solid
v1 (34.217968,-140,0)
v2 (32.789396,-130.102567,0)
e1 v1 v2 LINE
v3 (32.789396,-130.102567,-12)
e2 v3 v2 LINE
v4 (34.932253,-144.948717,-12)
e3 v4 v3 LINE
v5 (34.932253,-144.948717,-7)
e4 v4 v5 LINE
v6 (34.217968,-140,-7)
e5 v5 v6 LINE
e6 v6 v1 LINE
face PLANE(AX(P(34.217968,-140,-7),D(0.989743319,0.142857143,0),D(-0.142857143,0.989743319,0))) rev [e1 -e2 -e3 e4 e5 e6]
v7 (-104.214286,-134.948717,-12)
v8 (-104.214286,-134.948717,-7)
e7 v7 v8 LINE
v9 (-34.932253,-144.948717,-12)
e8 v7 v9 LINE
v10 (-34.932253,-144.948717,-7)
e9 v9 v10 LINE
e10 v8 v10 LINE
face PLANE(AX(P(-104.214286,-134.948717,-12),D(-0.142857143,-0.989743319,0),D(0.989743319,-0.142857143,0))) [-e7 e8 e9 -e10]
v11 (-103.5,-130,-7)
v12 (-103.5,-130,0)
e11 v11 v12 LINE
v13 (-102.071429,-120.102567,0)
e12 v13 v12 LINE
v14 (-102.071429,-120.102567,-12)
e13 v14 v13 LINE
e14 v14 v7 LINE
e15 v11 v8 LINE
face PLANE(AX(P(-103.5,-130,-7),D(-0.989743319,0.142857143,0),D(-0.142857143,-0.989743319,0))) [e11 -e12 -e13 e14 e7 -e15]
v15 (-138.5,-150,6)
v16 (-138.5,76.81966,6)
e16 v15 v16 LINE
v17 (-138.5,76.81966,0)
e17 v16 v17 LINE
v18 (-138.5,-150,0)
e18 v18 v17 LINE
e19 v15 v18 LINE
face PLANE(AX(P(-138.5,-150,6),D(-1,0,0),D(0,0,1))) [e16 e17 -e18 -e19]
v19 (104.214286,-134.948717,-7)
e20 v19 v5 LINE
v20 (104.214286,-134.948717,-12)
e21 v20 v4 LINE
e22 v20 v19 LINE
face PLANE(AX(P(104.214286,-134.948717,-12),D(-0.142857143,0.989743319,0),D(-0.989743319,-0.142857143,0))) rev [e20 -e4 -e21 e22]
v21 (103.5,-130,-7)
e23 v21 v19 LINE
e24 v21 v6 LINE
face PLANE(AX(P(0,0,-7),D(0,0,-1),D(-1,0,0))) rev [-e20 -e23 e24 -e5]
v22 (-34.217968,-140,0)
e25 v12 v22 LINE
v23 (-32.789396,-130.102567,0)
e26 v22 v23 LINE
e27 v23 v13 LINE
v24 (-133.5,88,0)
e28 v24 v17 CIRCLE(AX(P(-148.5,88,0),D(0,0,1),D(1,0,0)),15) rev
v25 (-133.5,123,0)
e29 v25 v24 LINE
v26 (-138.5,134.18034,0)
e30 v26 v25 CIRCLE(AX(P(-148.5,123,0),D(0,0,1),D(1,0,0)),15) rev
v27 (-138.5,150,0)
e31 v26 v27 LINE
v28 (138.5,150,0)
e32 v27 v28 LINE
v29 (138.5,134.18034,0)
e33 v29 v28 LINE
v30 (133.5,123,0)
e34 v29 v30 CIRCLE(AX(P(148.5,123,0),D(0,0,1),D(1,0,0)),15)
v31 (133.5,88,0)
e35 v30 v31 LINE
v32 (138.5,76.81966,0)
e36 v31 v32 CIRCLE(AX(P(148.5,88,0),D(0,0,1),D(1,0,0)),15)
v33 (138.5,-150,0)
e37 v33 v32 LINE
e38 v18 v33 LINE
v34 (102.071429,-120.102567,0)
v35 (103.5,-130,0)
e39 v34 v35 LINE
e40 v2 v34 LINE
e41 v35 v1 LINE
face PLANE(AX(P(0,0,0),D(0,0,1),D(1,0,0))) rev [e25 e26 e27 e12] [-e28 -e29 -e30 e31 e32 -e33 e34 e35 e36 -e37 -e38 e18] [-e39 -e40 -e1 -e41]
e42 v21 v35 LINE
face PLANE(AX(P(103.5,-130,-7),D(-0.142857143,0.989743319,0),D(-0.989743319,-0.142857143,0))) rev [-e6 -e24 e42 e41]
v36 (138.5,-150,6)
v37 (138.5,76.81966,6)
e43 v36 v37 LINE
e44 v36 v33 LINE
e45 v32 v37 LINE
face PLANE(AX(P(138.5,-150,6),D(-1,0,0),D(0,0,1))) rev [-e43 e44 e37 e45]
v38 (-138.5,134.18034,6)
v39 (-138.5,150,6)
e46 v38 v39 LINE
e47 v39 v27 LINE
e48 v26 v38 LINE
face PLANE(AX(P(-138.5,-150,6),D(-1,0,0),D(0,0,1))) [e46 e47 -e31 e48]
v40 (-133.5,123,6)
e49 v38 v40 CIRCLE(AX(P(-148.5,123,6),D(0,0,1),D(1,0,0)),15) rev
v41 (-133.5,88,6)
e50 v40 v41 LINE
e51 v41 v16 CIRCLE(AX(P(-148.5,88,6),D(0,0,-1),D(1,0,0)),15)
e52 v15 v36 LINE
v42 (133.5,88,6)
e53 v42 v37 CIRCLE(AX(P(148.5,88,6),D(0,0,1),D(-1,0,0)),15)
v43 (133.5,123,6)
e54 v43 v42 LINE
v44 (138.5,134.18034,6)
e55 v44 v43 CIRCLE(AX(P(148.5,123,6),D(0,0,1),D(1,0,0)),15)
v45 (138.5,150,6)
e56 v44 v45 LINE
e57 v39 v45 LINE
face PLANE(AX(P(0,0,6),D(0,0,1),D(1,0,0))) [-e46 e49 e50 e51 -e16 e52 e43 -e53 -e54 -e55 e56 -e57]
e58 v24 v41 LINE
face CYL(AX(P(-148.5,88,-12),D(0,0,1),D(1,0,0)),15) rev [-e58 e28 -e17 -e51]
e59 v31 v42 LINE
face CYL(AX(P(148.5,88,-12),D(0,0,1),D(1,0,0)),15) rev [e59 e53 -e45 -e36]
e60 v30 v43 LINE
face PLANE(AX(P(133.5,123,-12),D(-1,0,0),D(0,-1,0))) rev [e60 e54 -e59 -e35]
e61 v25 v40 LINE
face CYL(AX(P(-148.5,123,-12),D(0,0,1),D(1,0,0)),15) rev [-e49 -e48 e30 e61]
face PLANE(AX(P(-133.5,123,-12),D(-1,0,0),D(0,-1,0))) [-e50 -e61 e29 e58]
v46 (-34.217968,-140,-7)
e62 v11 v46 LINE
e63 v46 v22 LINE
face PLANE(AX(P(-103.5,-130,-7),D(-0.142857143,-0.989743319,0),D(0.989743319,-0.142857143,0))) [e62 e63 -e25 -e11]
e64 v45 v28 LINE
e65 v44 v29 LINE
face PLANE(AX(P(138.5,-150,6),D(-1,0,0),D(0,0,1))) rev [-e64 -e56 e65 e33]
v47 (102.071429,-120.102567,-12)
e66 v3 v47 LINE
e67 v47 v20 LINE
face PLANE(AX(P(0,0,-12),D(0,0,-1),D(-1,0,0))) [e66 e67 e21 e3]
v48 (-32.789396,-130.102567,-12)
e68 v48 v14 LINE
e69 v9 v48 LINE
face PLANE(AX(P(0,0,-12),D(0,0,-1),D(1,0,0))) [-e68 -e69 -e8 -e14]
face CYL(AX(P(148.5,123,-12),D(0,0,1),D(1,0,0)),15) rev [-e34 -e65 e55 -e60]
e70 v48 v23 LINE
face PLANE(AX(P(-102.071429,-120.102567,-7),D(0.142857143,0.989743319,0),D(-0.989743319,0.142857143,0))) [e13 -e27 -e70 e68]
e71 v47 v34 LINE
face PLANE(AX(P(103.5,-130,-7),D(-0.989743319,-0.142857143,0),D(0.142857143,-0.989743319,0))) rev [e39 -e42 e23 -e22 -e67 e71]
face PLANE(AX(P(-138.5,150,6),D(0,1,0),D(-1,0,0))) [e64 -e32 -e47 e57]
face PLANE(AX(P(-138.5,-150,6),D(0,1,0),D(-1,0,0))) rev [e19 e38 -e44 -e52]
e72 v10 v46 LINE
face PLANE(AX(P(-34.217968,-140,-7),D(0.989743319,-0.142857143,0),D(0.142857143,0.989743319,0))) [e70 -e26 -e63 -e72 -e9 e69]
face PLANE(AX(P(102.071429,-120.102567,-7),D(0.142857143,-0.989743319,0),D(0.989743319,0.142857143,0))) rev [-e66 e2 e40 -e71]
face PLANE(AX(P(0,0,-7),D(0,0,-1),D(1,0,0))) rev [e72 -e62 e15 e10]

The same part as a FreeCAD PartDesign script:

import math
import FreeCAD as App
import Part
import Sketcher

doc = App.newDocument("Part")
body = doc.addObject("PartDesign::Body", "Body")

sketch1 = body.newObject("Sketcher::SketchObject", "Sketch")
sketch1.AttachmentSupport = (doc.getObject("XY_Plane"), [""])
sketch1.MapMode = "FlatFace"
sketch1.addGeometry([
    Part.LineSegment(App.Vector(-138.5, 150, 0), App.Vector(-138.5, -150, 0)),
    Part.LineSegment(App.Vector(-138.5, -150, 0), App.Vector(138.5, -150, 0)),
    Part.LineSegment(App.Vector(138.5, -150, 0), App.Vector(138.5, 150, 0)),
    Part.LineSegment(App.Vector(138.5, 150, 0), App.Vector(-138.5, 150, 0)),
], False)
sketch1.addConstraint([
    Sketcher.Constraint("Coincident", 0, 2, 1, 1),
    Sketcher.Constraint("Coincident", 1, 2, 2, 1),
    Sketcher.Constraint("Coincident", 2, 2, 3, 1),
    Sketcher.Constraint("Coincident", 3, 2, 0, 1),
    Sketcher.Constraint("Vertical", 0),
    Sketcher.Constraint("Horizontal", 1),
    Sketcher.Constraint("Vertical", 2),
    Sketcher.Constraint("Horizontal", 3),
    Sketcher.Constraint("Symmetric", 0, 2, 2, 2, -1, 1),
    Sketcher.Constraint("DistanceX", 1, 1, 1, 2, 277.0),
    Sketcher.Constraint("DistanceY", 0, 2, 0, 1, 300.0),
])
pad1 = body.newObject("PartDesign::Pad", "Pad")
pad1.Profile = sketch1
pad1.Length = 6

sketch2 = body.newObject("Sketcher::SketchObject", "Sketch001")
sketch2.AttachmentSupport = (doc.getObject("XY_Plane"), [""])
sketch2.MapMode = "FlatFace"
sketch2.addGeometry([
    Part.LineSegment(App.Vector(103.5, -130, 0), App.Vector(34.217968, -140, 0)),
    Part.LineSegment(App.Vector(34.217968, -140, 0), App.Vector(32.789396, -130.102567, 0)),
    Part.LineSegment(App.Vector(32.789396, -130.102567, 0), App.Vector(102.071429, -120.102567, 0)),
    Part.LineSegment(App.Vector(102.071429, -120.102567, 0), App.Vector(103.5, -130, 0)),
], False)
sketch2.addConstraint([
    Sketcher.Constraint("Coincident", 0, 2, 1, 1),
    Sketcher.Constraint("Coincident", 1, 2, 2, 1),
    Sketcher.Constraint("Coincident", 2, 2, 3, 1),
    Sketcher.Constraint("Coincident", 3, 2, 0, 1),
    Sketcher.Constraint("Perpendicular", 0, 1),
    Sketcher.Constraint("Perpendicular", 1, 2),
    Sketcher.Constraint("Perpendicular", 2, 3),
    Sketcher.Constraint("Distance", 0, 70.0),
    Sketcher.Constraint("Distance", 1, 10.0),
    Sketcher.Constraint("DistanceY", 0, 2, -1, 1, 140.0),
    Sketcher.Constraint("DistanceY", 3, 2, -1, 1, 130.0),
    Sketcher.Constraint("DistanceX", -1, 1, 3, 2, 103.5),
])
pad2 = body.newObject("PartDesign::Pad", "Pad001")
pad2.Profile = sketch2
pad2.Length = 7
pad2.Reversed = True

sketch3 = body.newObject("Sketcher::SketchObject", "Sketch002")
sketch3.AttachmentSupport = (doc.getObject("XY_Plane"), [""])
sketch3.MapMode = "FlatFace"
sketch3.AttachmentOffset = App.Placement(App.Vector(0, 0, -7), App.Rotation())
sketch3.addGeometry([
    Part.LineSegment(App.Vector(32.789396, -130.102567, 0), App.Vector(102.071429, -120.102567, 0)),
    Part.LineSegment(App.Vector(102.071429, -120.102567, 0), App.Vector(104.214286, -134.948717, 0)),
    Part.LineSegment(App.Vector(104.214286, -134.948717, 0), App.Vector(34.932253, -144.948717, 0)),
    Part.LineSegment(App.Vector(34.932253, -144.948717, 0), App.Vector(32.789396, -130.102567, 0)),
], False)
sketch3.addConstraint([
    Sketcher.Constraint("Coincident", 0, 2, 1, 1),
    Sketcher.Constraint("Coincident", 1, 2, 2, 1),
    Sketcher.Constraint("Coincident", 2, 2, 3, 1),
    Sketcher.Constraint("Coincident", 3, 2, 0, 1),
    Sketcher.Constraint("Perpendicular", 0, 1),
    Sketcher.Constraint("Perpendicular", 1, 2),
    Sketcher.Constraint("Perpendicular", 2, 3),
    Sketcher.Constraint("Distance", 0, 70.0),
    Sketcher.Constraint("Distance", 1, 15.0),
    Sketcher.Constraint("DistanceY", 2, 2, 1, 2, 10.0),
    Sketcher.Constraint("DistanceX", -1, 1, 0, 2, 102.071429),
    Sketcher.Constraint("DistanceY", 0, 2, -1, 1, 120.102567),
])
pad3 = body.newObject("PartDesign::Pad", "Pad002")
pad3.Profile = sketch3
pad3.Length = 5
pad3.Reversed = True

sketch4 = body.newObject("Sketcher::SketchObject", "Sketch003")
sketch4.AttachmentSupport = (doc.getObject("XY_Plane"), [""])
sketch4.MapMode = "FlatFace"
sketch4.AttachmentOffset = App.Placement(App.Vector(0, 0, 6), App.Rotation())
sketch4.addGeometry([
    Part.LineSegment(App.Vector(133.5, 123, 0), App.Vector(133.5, 88, 0)),
    Part.ArcOfCircle(Part.Circle(App.Vector(148.5, 88, 0), App.Vector(0, 0, 1), 15), math.radians(180), math.radians(360)),
    Part.LineSegment(App.Vector(163.5, 88, 0), App.Vector(163.5, 123, 0)),
    Part.ArcOfCircle(Part.Circle(App.Vector(148.5, 123, 0), App.Vector(0, 0, 1), 15), math.radians(0), math.radians(180)),
], False)
sketch4.addConstraint([
    Sketcher.Constraint("Tangent", 0, 2, 1, 1),
    Sketcher.Constraint("Tangent", 1, 2, 2, 1),
    Sketcher.Constraint("Tangent", 2, 2, 3, 1),
    Sketcher.Constraint("Tangent", 3, 2, 0, 1),
    Sketcher.Constraint("Vertical", 0),
    Sketcher.Constraint("Vertical", 2),
    Sketcher.Constraint("Radius", 1, 15.0),
    Sketcher.Constraint("DistanceY", 0, 2, 0, 1, 35.0),
    Sketcher.Constraint("DistanceY", -1, 1, 1, 3, 88.0),
    Sketcher.Constraint("DistanceX", -1, 1, 1, 3, 148.5),
])
pocket1 = body.newObject("PartDesign::Pocket", "Pocket")
pocket1.Profile = sketch4
pocket1.Type = "ThroughAll"
doc.recompute()

mirrored = body.newObject("PartDesign::Mirrored", "Mirrored")
mirrored.Originals = [pad2, pad3, pocket1]
mirrored.MirrorPlane = (doc.getObject("YZ_Plane"), [""])
body.Tip = mirrored

doc.recompute()
